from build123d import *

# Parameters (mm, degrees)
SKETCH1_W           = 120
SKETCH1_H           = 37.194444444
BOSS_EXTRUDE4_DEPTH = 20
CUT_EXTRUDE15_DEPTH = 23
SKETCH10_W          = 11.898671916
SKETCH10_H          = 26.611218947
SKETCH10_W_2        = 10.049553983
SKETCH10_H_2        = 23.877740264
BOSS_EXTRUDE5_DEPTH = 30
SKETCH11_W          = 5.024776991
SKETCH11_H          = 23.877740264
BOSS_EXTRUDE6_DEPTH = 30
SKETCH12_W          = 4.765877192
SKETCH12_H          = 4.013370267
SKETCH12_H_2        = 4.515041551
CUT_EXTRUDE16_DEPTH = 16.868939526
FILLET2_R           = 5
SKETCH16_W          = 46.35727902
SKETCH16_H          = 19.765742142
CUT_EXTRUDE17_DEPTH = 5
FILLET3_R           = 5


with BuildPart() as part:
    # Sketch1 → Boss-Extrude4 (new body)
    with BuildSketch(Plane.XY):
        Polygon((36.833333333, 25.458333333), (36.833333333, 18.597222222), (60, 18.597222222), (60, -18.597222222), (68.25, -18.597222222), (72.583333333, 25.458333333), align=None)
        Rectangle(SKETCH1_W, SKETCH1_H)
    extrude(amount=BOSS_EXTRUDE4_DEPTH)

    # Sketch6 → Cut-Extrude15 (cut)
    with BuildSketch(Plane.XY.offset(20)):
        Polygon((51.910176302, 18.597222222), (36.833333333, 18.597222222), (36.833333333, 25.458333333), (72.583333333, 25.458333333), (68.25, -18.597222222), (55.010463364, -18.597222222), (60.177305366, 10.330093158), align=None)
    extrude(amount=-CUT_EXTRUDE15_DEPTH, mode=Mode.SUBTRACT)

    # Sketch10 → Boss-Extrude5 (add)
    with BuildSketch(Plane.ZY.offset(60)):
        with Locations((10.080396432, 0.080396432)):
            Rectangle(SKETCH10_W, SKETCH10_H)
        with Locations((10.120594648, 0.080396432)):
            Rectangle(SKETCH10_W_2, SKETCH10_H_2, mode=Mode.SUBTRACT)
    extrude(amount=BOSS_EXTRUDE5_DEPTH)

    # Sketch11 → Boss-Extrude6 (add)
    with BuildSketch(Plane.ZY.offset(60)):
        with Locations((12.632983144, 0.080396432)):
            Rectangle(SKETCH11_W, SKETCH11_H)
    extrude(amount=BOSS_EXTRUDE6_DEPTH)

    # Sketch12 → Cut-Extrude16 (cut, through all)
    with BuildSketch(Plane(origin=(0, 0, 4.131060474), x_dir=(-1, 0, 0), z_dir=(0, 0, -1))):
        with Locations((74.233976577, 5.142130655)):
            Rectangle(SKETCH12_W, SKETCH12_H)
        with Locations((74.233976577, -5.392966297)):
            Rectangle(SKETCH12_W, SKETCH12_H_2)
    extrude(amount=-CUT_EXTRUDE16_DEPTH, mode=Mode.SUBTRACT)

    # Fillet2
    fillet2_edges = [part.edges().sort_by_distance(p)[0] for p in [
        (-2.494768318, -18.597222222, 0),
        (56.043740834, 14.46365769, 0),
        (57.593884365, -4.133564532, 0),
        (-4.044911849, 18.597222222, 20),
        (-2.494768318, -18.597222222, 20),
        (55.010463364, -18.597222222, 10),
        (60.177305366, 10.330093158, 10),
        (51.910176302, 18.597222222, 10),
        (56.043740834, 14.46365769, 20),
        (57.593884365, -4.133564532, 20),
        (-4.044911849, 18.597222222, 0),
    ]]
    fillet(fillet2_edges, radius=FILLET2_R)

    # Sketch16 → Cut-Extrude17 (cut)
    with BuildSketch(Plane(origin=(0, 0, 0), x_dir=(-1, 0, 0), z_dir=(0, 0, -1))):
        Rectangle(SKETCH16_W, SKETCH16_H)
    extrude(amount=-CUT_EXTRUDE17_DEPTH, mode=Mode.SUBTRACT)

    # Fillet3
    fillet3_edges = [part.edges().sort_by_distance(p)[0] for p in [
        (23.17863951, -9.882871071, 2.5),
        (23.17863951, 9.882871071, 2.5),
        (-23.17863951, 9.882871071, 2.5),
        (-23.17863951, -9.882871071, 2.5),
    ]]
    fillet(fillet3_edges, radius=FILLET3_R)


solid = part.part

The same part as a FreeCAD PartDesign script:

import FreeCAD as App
import Part
import Sketcher

V = App.Vector
Q = App.Units.Quantity


def edges_at(feature, points):
    """Names of the edges that pass closest to the given points."""
    edges = feature.Shape.Edges
    near = lambda p: min(range(len(edges)), key=lambda i: edges[i].distToShape(Part.Vertex(*p))[0])
    return sorted({f"Edge{near(p) + 1}" for p in points})

doc = App.newDocument("Part")
body = doc.addObject("PartDesign::Body", "Body")

sketch1 = doc.addObject("Sketcher::SketchObject", "Sketch")
body.addObject(sketch1)
sketch1.AttachmentSupport = (doc.XY_Plane, [""])
sketch1.MapMode = "FlatFace"
sketch1.addGeometry(Part.LineSegment(V(36.833333, 25.458333, 0), V(36.833333, 18.597222, 0)), False)
sketch1.addGeometry(Part.LineSegment(V(36.833333, 18.597222, 0), V(-60, 18.597222, 0)), False)
sketch1.addGeometry(Part.LineSegment(V(-60, 18.597222, 0), V(-60, -18.597222, 0)), False)
sketch1.addGeometry(Part.LineSegment(V(-60, -18.597222, 0), V(68.25, -18.597222, 0)), False)
sketch1.addGeometry(Part.LineSegment(V(68.25, -18.597222, 0), V(72.583333, 25.458333, 0)), False)
sketch1.addGeometry(Part.LineSegment(V(72.583333, 25.458333, 0), V(36.833333, 25.458333, 0)), False)
sketch1.addConstraint(Sketcher.Constraint("Coincident", 0, 2, 1, 1))
sketch1.addConstraint(Sketcher.Constraint("Coincident", 1, 2, 2, 1))
sketch1.addConstraint(Sketcher.Constraint("Coincident", 2, 2, 3, 1))
sketch1.addConstraint(Sketcher.Constraint("Coincident", 3, 2, 4, 1))
sketch1.addConstraint(Sketcher.Constraint("Coincident", 4, 2, 5, 1))
sketch1.addConstraint(Sketcher.Constraint("Coincident", 5, 2, 0, 1))
sketch1.addConstraint(Sketcher.Constraint("Vertical", 0))
sketch1.addConstraint(Sketcher.Constraint("Horizontal", 1))
sketch1.addConstraint(Sketcher.Constraint("Vertical", 2))
sketch1.addConstraint(Sketcher.Constraint("Horizontal", 3))
sketch1.addConstraint(Sketcher.Constraint("Horizontal", 5))
sketch1.addConstraint(Sketcher.Constraint("DistanceX", 1, 2, -1, 1, Q("60 mm")))
sketch1.addConstraint(Sketcher.Constraint("DistanceX", 3, 1, 3, 2, Q("128.25 mm")))
sketch1.addConstraint(Sketcher.Constraint("DistanceX", 5, 2, 5, 1, Q("35.75 mm")))
sketch1.addConstraint(Sketcher.Constraint("DistanceY", 0, 2, 0, 1, Q("6.861111 mm")))
sketch1.addConstraint(Sketcher.Constraint("DistanceX", 1, 2, 1, 1, Q("96.833333 mm")))
sketch1.addConstraint(Sketcher.Constraint("DistanceY", 2, 2, 2, 1, Q("37.194444 mm")))
sketch1.addConstraint(Sketcher.Constraint("DistanceY", -1, 1, 0, 2, Q("18.597222 mm")))
pad1 = doc.addObject("PartDesign::Pad", "Pad")
body.addObject(pad1)
pad1.Profile = sketch1
pad1.Length = 20

sketch2 = doc.addObject("Sketcher::SketchObject", "Sketch001")
body.addObject(sketch2)
sketch2.AttachmentSupport = (doc.XY_Plane, [""])
sketch2.MapMode = "FlatFace"
sketch2.AttachmentOffset = App.Placement(V(0, 0, 20), App.Rotation())
sketch2.addGeometry(Part.LineSegment(V(36.833333, 18.597222, 0), V(51.910176, 18.597222, 0)), False)
sketch2.addGeometry(Part.LineSegment(V(51.910176, 18.597222, 0), V(60.177305, 10.330093, 0)), False)
sketch2.addGeometry(Part.LineSegment(V(60.177305, 10.330093, 0), V(55.010463, -18.597222, 0)), False)
sketch2.addGeometry(Part.LineSegment(V(55.010463, -18.597222, 0), V(68.25, -18.597222, 0)), False)
sketch2.addGeometry(Part.LineSegment(V(68.25, -18.597222, 0), V(72.583333, 25.458333, 0)), False)
sketch2.addGeometry(Part.LineSegment(V(72.583333, 25.458333, 0), V(36.833333, 25.458333, 0)), False)
sketch2.addGeometry(Part.LineSegment(V(36.833333, 25.458333, 0), V(36.833333, 18.597222, 0)), False)
sketch2.addConstraint(Sketcher.Constraint("Coincident", 0, 2, 1, 1))
sketch2.addConstraint(Sketcher.Constraint("Coincident", 1, 2, 2, 1))
sketch2.addConstraint(Sketcher.Constraint("Coincident", 2, 2, 3, 1))
sketch2.addConstraint(Sketcher.Constraint("Coincident", 3, 2, 4, 1))
sketch2.addConstraint(Sketcher.Constraint("Coincident", 4, 2, 5, 1))
sketch2.addConstraint(Sketcher.Constraint("Coincident", 5, 2, 6, 1))
sketch2.addConstraint(Sketcher.Constraint("Coincident", 6, 2, 0, 1))
sketch2.addConstraint(Sketcher.Constraint("Horizontal", 0))
sketch2.addConstraint(Sketcher.Constraint("Horizontal", 3))
sketch2.addConstraint(Sketcher.Constraint("Horizontal", 5))
sketch2.addConstraint(Sketcher.Constraint("Vertical", 6))
sketch2.addConstraint(Sketcher.Constraint("Angle", 1, Q("-45 deg")))
sketch2.addConstraint(Sketcher.Constraint("DistanceX", 5, 2, 5, 1, Q("35.75 mm")))
sketch2.addConstraint(Sketcher.Constraint("DistanceX", -1, 1, 3, 2, Q("68.25 mm")))
sketch2.addConstraint(Sketcher.Constraint("DistanceY", 6, 2, 6, 1, Q("6.861111 mm")))
sketch2.addConstraint(Sketcher.Constraint("Distance", 2, Q("29.385129 mm")))
sketch2.addConstraint(Sketcher.Constraint("DistanceX", 0, 1, 0, 2, Q("15.076843 mm")))
sketch2.addConstraint(Sketcher.Constraint("DistanceX", 3, 1, 3, 2, Q("13.239537 mm")))
sketch2.addConstraint(Sketcher.Constraint("DistanceX", 0, 2, 1, 2, Q("8.267129 mm")))
sketch2.addConstraint(Sketcher.Constraint("DistanceX", 2, 2, 4, 2, Q("17.57287 mm")))
sketch2.addConstraint(Sketcher.Constraint("DistanceY", -1, 1, 0, 2, Q("18.597222 mm")))
pocket1 = doc.addObject("PartDesign::Pocket", "Pocket")
body.addObject(pocket1)
pocket1.Profile = sketch2
pocket1.Length = 23

sketch3 = doc.addObject("Sketcher::SketchObject", "Sketch002")
body.addObject(sketch3)
sketch3.AttachmentSupport = (doc.YZ_Plane, [""])
sketch3.MapMode = "FlatFace"
sketch3.AttachmentOffset = App.Placement(V(0, 0, -60), App.Rotation())
sketch3.addGeometry(Part.LineSegment(V(13.386006, 4.13106, 0), V(-13.225213, 4.13106, 0)), False)
sketch3.addGeometry(Part.LineSegment(V(-13.225213, 4.13106, 0), V(-13.225213, 16.029732, 0)), False)
sketch3.addGeometry(Part.LineSegment(V(-13.225213, 16.029732, 0), V(13.386006, 16.029732, 0)), False)
sketch3.addGeometry(Part.LineSegment(V(13.386006, 16.029732, 0), V(13.386006, 4.13106, 0)), False)
sketch3.addGeometry(Part.LineSegment(V(-11.858474, 15.145372, 0), V(-11.858474, 5.095818, 0)), False)
sketch3.addGeometry(Part.LineSegment(V(-11.858474, 5.095818, 0), V(12.019267, 5.095818, 0)), False)
sketch3.addGeometry(Part.LineSegment(V(12.019267, 5.095818, 0), V(12.019267, 15.145372, 0)), False)
sketch3.addGeometry(Part.LineSegment(V(12.019267, 15.145372, 0), V(-11.858474, 15.145372, 0)), False)
sketch3.addConstraint(Sketcher.Constraint("Coincident", 0, 2, 1, 1))
sketch3.addConstraint(Sketcher.Constraint("Coincident", 1, 2, 2, 1))
sketch3.addConstraint(Sketcher.Constraint("Coincident", 2, 2, 3, 1))
sketch3.addConstraint(Sketcher.Constraint("Coincident", 3, 2, 0, 1))
sketch3.addConstraint(Sketcher.Constraint("Coincident", 4, 2, 5, 1))
sketch3.addConstraint(Sketcher.Constraint("Coincident", 5, 2, 6, 1))
sketch3.addConstraint(Sketcher.Constraint("Coincident", 6, 2, 7, 1))
sketch3.addConstraint(Sketcher.Constraint("Coincident", 7, 2, 4, 1))
sketch3.addConstraint(Sketcher.Constraint("Horizontal", 0))
sketch3.addConstraint(Sketcher.Constraint("Vertical", 1))
sketch3.addConstraint(Sketcher.Constraint("Horizontal", 2))
sketch3.addConstraint(Sketcher.Constraint("Vertical", 3))
sketch3.addConstraint(Sketcher.Constraint("Vertical", 4))
sketch3.addConstraint(Sketcher.Constraint("Horizontal", 5))
sketch3.addConstraint(Sketcher.Constraint("Vertical", 6))
sketch3.addConstraint(Sketcher.Constraint("Horizontal", 7))
sketch3.addConstraint(Sketcher.Constraint("DistanceX", 0, 2, 0, 1, Q("26.611219 mm")))
sketch3.addConstraint(Sketcher.Constraint("DistanceX", 5, 1, 5, 2, Q("23.87774 mm")))
sketch3.addConstraint(Sketcher.Constraint("DistanceY", 1, 1, 1, 2, Q("11.898672 mm")))
sketch3.addConstraint(Sketcher.Constraint("DistanceY", 4, 2, 4, 1, Q("10.049554 mm")))
sketch3.addConstraint(Sketcher.Constraint("DistanceY", -1, 1, 0, 2, Q("4.13106 mm")))
sketch3.addConstraint(Sketcher.Constraint("DistanceY", -1, 1, 6, 2, Q("15.145372 mm")))
sketch3.addConstraint(Sketcher.Constraint("DistanceX", 0, 2, 4, 2, Q("1.366739 mm")))
sketch3.addConstraint(Sketcher.Constraint("DistanceX", 0, 2, -1, 1, Q("13.225213 mm")))
pad2 = doc.addObject("PartDesign::Pad", "Pad001")
body.addObject(pad2)
pad2.Profile = sketch3
pad2.Length = 30
pad2.Reversed = True

sketch4 = doc.addObject("Sketcher::SketchObject", "Sketch003")
body.addObject(sketch4)
sketch4.AttachmentSupport = (doc.YZ_Plane, [""])
sketch4.MapMode = "FlatFace"
sketch4.AttachmentOffset = App.Placement(V(0, 0, -60), App.Rotation())
sketch4.addGeometry(Part.LineSegment(V(12.019267, 10.120595, 0), V(-11.858474, 10.120595, 0)), False)
sketch4.addGeometry(Part.LineSegment(V(-11.858474, 10.120595, 0), V(-11.858474, 15.145372, 0)), False)
sketch4.addGeometry(Part.LineSegment(V(-11.858474, 15.145372, 0), V(12.019267, 15.145372, 0)), False)
sketch4.addGeometry(Part.LineSegment(V(12.019267, 15.145372, 0), V(12.019267, 10.120595, 0)), False)
sketch4.addConstraint(Sketcher.Constraint("Coincident", 0, 2, 1, 1))
sketch4.addConstraint(Sketcher.Constraint("Coincident", 1, 2, 2, 1))
sketch4.addConstraint(Sketcher.Constraint("Coincident", 2, 2, 3, 1))
sketch4.addConstraint(Sketcher.Constraint("Coincident", 3, 2, 0, 1))
sketch4.addConstraint(Sketcher.Constraint("Horizontal", 0))
sketch4.addConstraint(Sketcher.Constraint("Vertical", 1))
sketch4.addConstraint(Sketcher.Constraint("Horizontal", 2))
sketch4.addConstraint(Sketcher.Constraint("Vertical", 3))
sketch4.addConstraint(Sketcher.Constraint("DistanceX", 0, 2, 0, 1, Q("23.87774 mm")))
sketch4.addConstraint(Sketcher.Constraint("DistanceY", 1, 1, 1, 2, Q("5.024777 mm")))
sketch4.addConstraint(Sketcher.Constraint("DistanceY", -1, 1, 1, 2, Q("15.145372 mm")))
sketch4.addConstraint(Sketcher.Constraint("DistanceX", 0, 2, -1, 1, Q("11.858474 mm")))
pad3 = doc.addObject("PartDesign::Pad", "Pad002")
body.addObject(pad3)
pad3.Profile = sketch4
pad3.Length = 30
pad3.Reversed = True

sketch5 = doc.addObject("Sketcher::SketchObject", "Sketch004")
body.addObject(sketch5)
sketch5.AttachmentSupport = (doc.XY_Plane, [""])
sketch5.MapMode = "FlatFace"
sketch5.AttachmentOffset = App.Placement(V(0, 0, 4.13106), App.Rotation())
sketch5.addGeometry(Part.LineSegment(V(-71.851038, 7.148816, 0), V(-71.851038, 3.135446, 0)), False)
sketch5.addGeometry(Part.LineSegment(V(-71.851038, 3.135446, 0), V(-76.616915, 3.135446, 0)), False)
sketch5.addGeometry(Part.LineSegment(V(-76.616915, 3.135446, 0), V(-76.616915, 7.148816, 0)), False)
sketch5.addGeometry(Part.LineSegment(V(-76.616915, 7.148816, 0), V(-71.851038, 7.148816, 0)), False)
sketch5.addGeometry(Part.LineSegment(V(-71.851038, -3.135446, 0), V(-71.851038, -7.650487, 0)), False)
sketch5.addGeometry(Part.LineSegment(V(-71.851038, -7.650487, 0), V(-76.616915, -7.650487, 0)), False)
sketch5.addGeometry(Part.LineSegment(V(-76.616915, -7.650487, 0), V(-76.616915, -3.135446, 0)), False)
sketch5.addGeometry(Part.LineSegment(V(-76.616915, -3.135446, 0), V(-71.851038, -3.135446, 0)), False)
sketch5.addConstraint(Sketcher.Constraint("Coincident", 0, 2, 1, 1))
sketch5.addConstraint(Sketcher.Constraint("Coincident", 1, 2, 2, 1))
sketch5.addConstraint(Sketcher.Constraint("Coincident", 2, 2, 3, 1))
sketch5.addConstraint(Sketcher.Constraint("Coincident", 3, 2, 0, 1))
sketch5.addConstraint(Sketcher.Constraint("Coincident", 4, 2, 5, 1))
sketch5.addConstraint(Sketcher.Constraint("Coincident", 5, 2, 6, 1))
sketch5.addConstraint(Sketcher.Constraint("Coincident", 6, 2, 7, 1))
sketch5.addConstraint(Sketcher.Constraint("Coincident", 7, 2, 4, 1))
sketch5.addConstraint(Sketcher.Constraint("Vertical", 0))
sketch5.addConstraint(Sketcher.Constraint("Horizontal", 1))
sketch5.addConstraint(Sketcher.Constraint("Vertical", 2))
sketch5.addConstraint(Sketcher.Constraint("Horizontal", 3))
sketch5.addConstraint(Sketcher.Constraint("Vertical", 4))
sketch5.addConstraint(Sketcher.Constraint("Horizontal", 5))
sketch5.addConstraint(Sketcher.Constraint("Vertical", 6))
sketch5.addConstraint(Sketcher.Constraint("Horizontal", 7))
sketch5.addConstraint(Sketcher.Constraint("Symmetric", 1, 2, 6, 2, -1))
sketch5.addConstraint(Sketcher.Constraint("Vertical", 3, 2, 4, 2))
sketch5.addConstraint(Sketcher.Constraint("DistanceY", 0, 2, 0, 1, Q("4.01337 mm")))
sketch5.addConstraint(Sketcher.Constraint("DistanceY", 4, 2, 4, 1, Q("4.515042 mm")))
sketch5.addConstraint(Sketcher.Constraint("DistanceX", 1, 2, 1, 1, Q("4.765877 mm")))
sketch5.addConstraint(Sketcher.Constraint("DistanceY", 6, 2, 1, 2, Q("6.270891 mm")))
sketch5.addConstraint(Sketcher.Constraint("DistanceX", 0, 2, -1, 1, Q("71.851038 mm")))
pocket2 = doc.addObject("PartDesign::Pocket", "Pocket001")
body.addObject(pocket2)
pocket2.Profile = sketch5
pocket2.Type = "ThroughAll"
pocket2.Reversed = True
doc.recompute()

fillet = doc.addObject("PartDesign::Fillet", "Fillet")
body.addObject(fillet)
fillet.Base = (pocket2, edges_at(pocket2, [
    (-2.495, -18.597, 0),
    (56.044, 14.464, 0),
    (57.594, -4.134, 0),
    (-4.045, 18.597, 20),
    (-2.495, -18.597, 20),
    (55.01, -18.597, 10),
    (60.177, 10.33, 10),
    (51.91, 18.597, 10),
    (56.044, 14.464, 20),
    (57.594, -4.134, 20),
    (-4.045, 18.597, 0),
]))
fillet.Radius = 5

sketch6 = doc.addObject("Sketcher::SketchObject", "Sketch005")
body.addObject(sketch6)
sketch6.AttachmentSupport = (doc.XY_Plane, [""])
sketch6.MapMode = "FlatFace"
sketch6.addGeometry(Part.LineSegment(V(23.17864, 9.882871, 0), V(23.17864, -9.882871, 0)), False)
sketch6.addGeometry(Part.LineSegment(V(23.17864, -9.882871, 0), V(-23.17864, -9.882871, 0)), False)
sketch6.addGeometry(Part.LineSegment(V(-23.17864, -9.882871, 0), V(-23.17864, 9.882871, 0)), False)
sketch6.addGeometry(Part.LineSegment(V(-23.17864, 9.882871, 0), V(23.17864, 9.882871, 0)), False)
sketch6.addConstraint(Sketcher.Constraint("Coincident", 0, 2, 1, 1))
sketch6.addConstraint(Sketcher.Constraint("Coincident", 1, 2, 2, 1))
sketch6.addConstraint(Sketcher.Constraint("Coincident", 2, 2, 3, 1))
sketch6.addConstraint(Sketcher.Constraint("Coincident", 3, 2, 0, 1))
sketch6.addConstraint(Sketcher.Constraint("Vertical", 0))
sketch6.addConstraint(Sketcher.Constraint("Horizontal", 1))
sketch6.addConstraint(Sketcher.Constraint("Vertical", 2))
sketch6.addConstraint(Sketcher.Constraint("Horizontal", 3))
sketch6.addConstraint(Sketcher.Constraint("Symmetric", 0, 2, 2, 2, -1, 1))
sketch6.addConstraint(Sketcher.Constraint("DistanceX", 1, 2, 1, 1, Q("46.357279 mm")))
sketch6.addConstraint(Sketcher.Constraint("DistanceY", 0, 2, 0, 1, Q("19.765742 mm")))
pocket3 = doc.addObject("PartDesign::Pocket", "Pocket002")
body.addObject(pocket3)
pocket3.Profile = sketch6
pocket3.Length = 5
pocket3.Reversed = True
doc.recompute()

fillet2 = doc.addObject("PartDesign::Fillet", "Fillet001")
body.addObject(fillet2)
fillet2.Base = (pocket3, edges_at(pocket3, [
    (23.179, -9.883, 2.5),
    (23.179, 9.883, 2.5),
    (-23.179, 9.883, 2.5),
    (-23.179, -9.883, 2.5),
]))
fillet2.Radius = 5

doc.recompute()
